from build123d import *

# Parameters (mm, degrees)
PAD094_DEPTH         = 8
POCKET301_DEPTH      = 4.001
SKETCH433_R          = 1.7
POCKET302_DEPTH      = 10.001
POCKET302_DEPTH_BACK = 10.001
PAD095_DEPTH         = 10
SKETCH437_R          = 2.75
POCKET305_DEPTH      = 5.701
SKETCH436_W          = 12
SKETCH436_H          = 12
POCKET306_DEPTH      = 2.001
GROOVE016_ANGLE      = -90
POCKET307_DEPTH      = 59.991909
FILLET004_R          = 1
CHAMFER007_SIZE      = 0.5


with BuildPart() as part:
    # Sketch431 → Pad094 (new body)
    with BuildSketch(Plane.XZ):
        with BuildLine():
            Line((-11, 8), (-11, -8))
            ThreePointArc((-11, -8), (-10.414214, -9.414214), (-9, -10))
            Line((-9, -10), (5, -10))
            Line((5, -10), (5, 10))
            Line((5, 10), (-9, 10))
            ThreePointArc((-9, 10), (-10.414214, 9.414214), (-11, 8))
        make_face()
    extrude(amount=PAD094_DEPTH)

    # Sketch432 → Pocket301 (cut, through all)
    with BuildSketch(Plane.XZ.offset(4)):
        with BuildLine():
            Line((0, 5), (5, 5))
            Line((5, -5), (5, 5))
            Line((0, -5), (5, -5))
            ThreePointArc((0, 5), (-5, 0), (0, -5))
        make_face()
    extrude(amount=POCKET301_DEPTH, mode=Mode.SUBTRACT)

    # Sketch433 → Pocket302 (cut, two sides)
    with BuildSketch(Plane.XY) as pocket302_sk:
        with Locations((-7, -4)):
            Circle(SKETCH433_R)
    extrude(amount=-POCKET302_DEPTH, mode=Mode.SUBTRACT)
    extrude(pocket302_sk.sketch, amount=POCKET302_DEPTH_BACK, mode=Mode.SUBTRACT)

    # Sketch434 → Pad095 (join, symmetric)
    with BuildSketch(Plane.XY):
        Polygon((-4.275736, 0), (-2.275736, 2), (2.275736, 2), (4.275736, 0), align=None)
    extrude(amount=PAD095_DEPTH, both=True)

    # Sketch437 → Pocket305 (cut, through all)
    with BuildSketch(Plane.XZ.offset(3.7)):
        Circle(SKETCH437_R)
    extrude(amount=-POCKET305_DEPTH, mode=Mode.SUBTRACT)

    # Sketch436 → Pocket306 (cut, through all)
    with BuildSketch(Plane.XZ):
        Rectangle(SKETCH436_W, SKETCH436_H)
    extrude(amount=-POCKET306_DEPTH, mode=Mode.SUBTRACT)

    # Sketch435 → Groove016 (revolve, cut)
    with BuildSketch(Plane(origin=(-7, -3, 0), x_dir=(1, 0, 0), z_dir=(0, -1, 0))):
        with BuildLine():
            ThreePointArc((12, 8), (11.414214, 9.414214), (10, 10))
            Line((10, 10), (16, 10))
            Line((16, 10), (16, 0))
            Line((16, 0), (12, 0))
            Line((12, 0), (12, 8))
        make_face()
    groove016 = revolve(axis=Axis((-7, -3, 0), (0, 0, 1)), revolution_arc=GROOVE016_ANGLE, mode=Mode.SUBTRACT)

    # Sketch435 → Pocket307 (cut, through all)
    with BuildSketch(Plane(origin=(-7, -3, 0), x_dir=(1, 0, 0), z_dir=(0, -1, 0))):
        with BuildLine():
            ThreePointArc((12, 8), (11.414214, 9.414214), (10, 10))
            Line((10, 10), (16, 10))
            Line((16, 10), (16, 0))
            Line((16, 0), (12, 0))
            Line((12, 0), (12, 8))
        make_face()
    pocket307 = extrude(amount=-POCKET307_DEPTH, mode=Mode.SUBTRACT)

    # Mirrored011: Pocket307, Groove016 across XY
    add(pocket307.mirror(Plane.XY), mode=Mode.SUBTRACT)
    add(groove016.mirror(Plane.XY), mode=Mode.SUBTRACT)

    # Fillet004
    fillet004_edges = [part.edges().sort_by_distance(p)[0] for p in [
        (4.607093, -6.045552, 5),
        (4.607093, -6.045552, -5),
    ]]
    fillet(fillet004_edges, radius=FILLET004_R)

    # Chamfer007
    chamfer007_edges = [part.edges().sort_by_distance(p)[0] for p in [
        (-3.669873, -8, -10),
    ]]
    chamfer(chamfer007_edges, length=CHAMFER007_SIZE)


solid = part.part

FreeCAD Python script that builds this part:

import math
import FreeCAD as App
import Part
import Sketcher
from FreeCAD import Vector


def edges_at(feature, points):
    """Names of the edges that pass closest to the given points."""
    edges = feature.Shape.Edges
    near = lambda p: min(range(len(edges)), key=lambda i: edges[i].distToShape(Part.Vertex(*p))[0])
    return sorted({f"Edge{near(p) + 1}" for p in points})


def add_polygon(sketch, points):
    """Adds a closed chain of lines whose ends are joined by coincident constraints."""
    first, n = sketch.GeometryCount, len(points)
    for a, b in zip(points, points[1:] + points[:1]):
        sketch.addGeometry(Part.LineSegment(App.Vector(*a, 0), App.Vector(*b, 0)), False)
    for i in range(n):
        sketch.addConstraint(Sketcher.Constraint("Coincident", first + i, 2, first + (i + 1) % n, 1))

doc = App.newDocument("Part")
body = doc.addObject("PartDesign::Body", "Body")

# Sketch on XZ plane
sketch1 = body.newObject("Sketcher::SketchObject", "Sketch")
sketch1.AttachmentSupport = (doc.getObject("XZ_Plane"), [""])
sketch1.MapMode = "FlatFace"
sketch1.addGeometry([
    Part.LineSegment(Vector(-11, 8, 0), Vector(-11, -8, 0)),  # 0
    Part.ArcOfCircle(Part.Circle(Vector(-9, -8, 0), Vector(0, 0, 1), 2), math.radians(180), math.radians(270)),  # 1
    Part.LineSegment(Vector(-9, -10, 0), Vector(5, -10, 0)),  # 2
    Part.LineSegment(Vector(5, -10, 0), Vector(5, 10, 0)),  # 3
    Part.LineSegment(Vector(5, 10, 0), Vector(-9, 10, 0)),  # 4
    Part.ArcOfCircle(Part.Circle(Vector(-9, 8, 0), Vector(0, 0, 1), 2), math.radians(90), math.radians(180)),  # 5
], False)
sketch1.addConstraint([
    Sketcher.Constraint("Tangent", 0, 2, 1, 1),
    Sketcher.Constraint("Tangent", 1, 2, 2, 1),
    Sketcher.Constraint("Coincident", 2, 2, 3, 1),
    Sketcher.Constraint("Coincident", 3, 2, 4, 1),
    Sketcher.Constraint("Tangent", 4, 2, 5, 1),
    Sketcher.Constraint("Tangent", 5, 2, 0, 1),
    Sketcher.Constraint("Vertical", 0),
    Sketcher.Constraint("Horizontal", 2),
    Sketcher.Constraint("Vertical", 3),
    Sketcher.Constraint("Horizontal", 4),
    Sketcher.Constraint("Equal", 1, 5),
    Sketcher.Constraint("Radius", 1, 1.999999),
    Sketcher.Constraint("DistanceX", 2, 1, 2, 2, 14.0),
    Sketcher.Constraint("DistanceY", 0, 2, 0, 1, 16.0),
    Sketcher.Constraint("DistanceX", 1, 3, -1, 1, 9.000001),
    Sketcher.Constraint("DistanceY", 1, 3, -1, 1, 8.000001),
])
pad1 = body.newObject("PartDesign::Pad", "Pad")
pad1.Profile = sketch1
pad1.Length = 8

# Sketch on XZ plane
sketch2 = body.newObject("Sketcher::SketchObject", "Sketch001")
sketch2.AttachmentSupport = (doc.getObject("XZ_Plane"), [""])
sketch2.MapMode = "FlatFace"
sketch2.AttachmentOffset = App.Placement(Vector(0, 0, 4), App.Rotation())
sketch2.addGeometry([
    Part.LineSegment(Vector(5, 5, 0), Vector(0, 5, 0)),
    Part.ArcOfCircle(Part.Circle(Vector(0, 0, 0), Vector(0, 0, 1), 5), math.radians(90), math.radians(270)),
    Part.LineSegment(Vector(0, -5, 0), Vector(5, -5, 0)),
    Part.LineSegment(Vector(5, -5, 0), Vector(5, 5, 0)),
], False)
sketch2.addConstraint([
    Sketcher.Constraint("Tangent", 0, 2, 1, 1),
    Sketcher.Constraint("Tangent", 1, 2, 2, 1),
    Sketcher.Constraint("Coincident", 2, 2, 3, 1),
    Sketcher.Constraint("Coincident", 3, 2, 0, 1),
    Sketcher.Constraint("Horizontal", 0),
    Sketcher.Constraint("Horizontal", 2),
    Sketcher.Constraint("Vertical", 3),
    Sketcher.Constraint("Coincident", 1, 3, -1, 1),
    Sketcher.Constraint("Radius", 1, 5.0),
    Sketcher.Constraint("DistanceX", 0, 2, 0, 1, 5.0),
])
pocket1 = body.newObject("PartDesign::Pocket", "Pocket")
pocket1.Profile = sketch2
pocket1.Type = "ThroughAll"
pocket1.Reversed = True

# Sketch on XY plane
sketch3 = body.newObject("Sketcher::SketchObject", "Sketch002")
sketch3.AttachmentSupport = (doc.getObject("XY_Plane"), [""])
sketch3.MapMode = "FlatFace"
sketch3.addGeometry(Part.Circle(Vector(-7, -4, 0), Vector(0, 0, 1), 1.7), False)
sketch3.addConstraint([
    Sketcher.Constraint("Diameter", 0, 3.4),
    Sketcher.Constraint("DistanceX", 0, 3, -1, 1, 7.0),
    Sketcher.Constraint("DistanceY", 0, 3, -1, 1, 4.0),
])
pocket2 = body.newObject("PartDesign::Pocket", "Pocket001")
pocket2.Profile = sketch3
pocket2.Type = "ThroughAll"
pocket2.Midplane = True

# Sketch on XY plane
sketch4 = body.newObject("Sketcher::SketchObject", "Sketch003")
sketch4.AttachmentSupport = (doc.getObject("XY_Plane"), [""])
sketch4.MapMode = "FlatFace"
add_polygon(sketch4, [(-2.3, 2), (-4.3, 0), (4.3, 0), (2.3, 2)])  # lines 0-3
sketch4.addConstraint([
    Sketcher.Constraint("Horizontal", 1),
    Sketcher.Constraint("Horizontal", 3),
    Sketcher.Constraint("Symmetric", 0, 2, 1, 2, -1, 1),
    Sketcher.Constraint("Perpendicular", 0, 2),
    Sketcher.Constraint("Equal", 0, 2),
    Sketcher.Constraint("DistanceY", -1, 1, 2, 2, 2.0),
    Sketcher.Constraint("DistanceX", 1, 1, 1, 2, 8.551472),
])
pad2 = body.newObject("PartDesign::Pad", "Pad001")
pad2.Profile = sketch4
pad2.Length = 20
pad2.Midplane = True

# Sketch on XZ plane
sketch5 = body.newObject("Sketcher::SketchObject", "Sketch004")
sketch5.AttachmentSupport = (doc.getObject("XZ_Plane"), [""])
sketch5.MapMode = "FlatFace"
sketch5.AttachmentOffset = App.Placement(Vector(0, 0, 3.7), App.Rotation())
sketch5.addGeometry(Part.Circle(Vector(0, 0, 0), Vector(0, 0, 1), 2.8), False)
sketch5.addConstraint([
    Sketcher.Constraint("Coincident", 0, 3, -1, 1),
    Sketcher.Constraint("Diameter", 0, 5.5),
])
pocket3 = body.newObject("PartDesign::Pocket", "Pocket002")
pocket3.Profile = sketch5
pocket3.Type = "ThroughAll"

# Sketch on XZ plane
sketch6 = body.newObject("Sketcher::SketchObject", "Sketch005")
sketch6.AttachmentSupport = (doc.getObject("XZ_Plane"), [""])
sketch6.MapMode = "FlatFace"
add_polygon(sketch6, [(-6, 6), (-6, -6), (6, -6), (6, 6)])  # lines 0-3
sketch6.addConstraint([
    Sketcher.Constraint("Vertical", 0),
    Sketcher.Constraint("Horizontal", 1),
    Sketcher.Constraint("Vertical", 2),
    Sketcher.Constraint("Horizontal", 3),
    Sketcher.Constraint("Symmetric", 0, 2, 2, 2, -1, 1),
    Sketcher.Constraint("Equal", 3, 0),
    Sketcher.Constraint("DistanceX", 1, 1, 1, 2, 12.0),
])
pocket4 = body.newObject("PartDesign::Pocket", "Pocket003")
pocket4.Profile = sketch6
pocket4.Type = "ThroughAll"

# Sketch on XZ plane
sketch7 = body.newObject("Sketcher::SketchObject", "Sketch006")
sketch7.AttachmentSupport = (doc.getObject("XZ_Plane"), [""])
sketch7.MapMode = "FlatFace"
sketch7.AttachmentOffset = App.Placement(Vector(0, 0, 3), App.Rotation())
sketch7.addGeometry([
    Part.ArcOfCircle(Part.Circle(Vector(3, 8, 0), Vector(0, 0, 1), 2), math.radians(0), math.radians(90)),  # 0
    Part.LineSegment(Vector(5, 8, 0), Vector(5, 0, 0)),  # 1
    Part.LineSegment(Vector(5, 0, 0), Vector(9, 0, 0)),  # 2
    Part.LineSegment(Vector(9, 0, 0), Vector(9, 10, 0)),  # 3
    Part.LineSegment(Vector(9, 10, 0), Vector(3, 10, 0)),  # 4
], False)
sketch7.addGeometry(Part.LineSegment(Vector(-7, 0, 0), Vector(-7, 10, 0)), True)  # axis
sketch7.addConstraint([
    Sketcher.Constraint("Tangent", 0, 1, 1, 1),
    Sketcher.Constraint("Coincident", 1, 2, 2, 1),
    Sketcher.Constraint("Coincident", 2, 2, 3, 1),
    Sketcher.Constraint("Coincident", 3, 2, 4, 1),
    Sketcher.Constraint("Tangent", 4, 2, 0, 2),
    Sketcher.Constraint("Vertical", 1),
    Sketcher.Constraint("Horizontal", 2),
    Sketcher.Constraint("Vertical", 3),
    Sketcher.Constraint("Horizontal", 4),
    Sketcher.Constraint("Vertical", 5),
    Sketcher.Constraint("PointOnObject", 1, 2, -1),
    Sketcher.Constraint("PointOnObject", 5, 1, -1),
    Sketcher.Constraint("Horizontal", 4, 2, 5, 2),
    Sketcher.Constraint("Radius", 0, 1.999999),
    Sketcher.Constraint("DistanceX", 2, 1, 2, 2, 4.0),
    Sketcher.Constraint("DistanceY", 1, 2, 1, 1, 8.0),
    Sketcher.Constraint("DistanceX", -1, 1, 0, 3, 3.000001),
    Sketcher.Constraint("DistanceX", 5, 1, -1, 1, 7.0),
])
groove = body.newObject("PartDesign::Groove", "Groove")
groove.Profile = sketch7
groove.ReferenceAxis = (sketch7, ["Axis0"])
groove.Angle = 90
groove.Reversed = True

# Sketch on XZ plane
sketch8 = body.newObject("Sketcher::SketchObject", "Sketch007")
sketch8.AttachmentSupport = (doc.getObject("XZ_Plane"), [""])
sketch8.MapMode = "FlatFace"
sketch8.AttachmentOffset = App.Placement(Vector(0, 0, 3), App.Rotation())
sketch8.addGeometry([
    Part.ArcOfCircle(Part.Circle(Vector(3, 8, 0), Vector(0, 0, 1), 2), math.radians(0), math.radians(90)),  # 0
    Part.LineSegment(Vector(5, 8, 0), Vector(5, 0, 0)),  # 1
    Part.LineSegment(Vector(5, 0, 0), Vector(9, 0, 0)),  # 2
    Part.LineSegment(Vector(9, 0, 0), Vector(9, 10, 0)),  # 3
    Part.LineSegment(Vector(9, 10, 0), Vector(3, 10, 0)),  # 4
], False)
sketch8.addConstraint([
    Sketcher.Constraint("Tangent", 0, 1, 1, 1),
    Sketcher.Constraint("Coincident", 1, 2, 2, 1),
    Sketcher.Constraint("Coincident", 2, 2, 3, 1),
    Sketcher.Constraint("Coincident", 3, 2, 4, 1),
    Sketcher.Constraint("Tangent", 4, 2, 0, 2),
    Sketcher.Constraint("Vertical", 1),
    Sketcher.Constraint("Horizontal", 2),
    Sketcher.Constraint("Vertical", 3),
    Sketcher.Constraint("Horizontal", 4),
    Sketcher.Constraint("PointOnObject", 1, 2, -1),
    Sketcher.Constraint("Radius", 0, 1.999999),
    Sketcher.Constraint("DistanceX", 2, 1, 2, 2, 4.0),
    Sketcher.Constraint("DistanceY", 1, 2, 1, 1, 8.0),
    Sketcher.Constraint("DistanceX", -1, 1, 0, 3, 3.000001),
])
pocket5 = body.newObject("PartDesign::Pocket", "Pocket004")
pocket5.Profile = sketch8
pocket5.Type = "ThroughAll"
doc.recompute()

mirrored = body.newObject("PartDesign::Mirrored", "Mirrored")
mirrored.Originals = [pocket5, groove]
mirrored.MirrorPlane = (doc.getObject("XY_Plane"), [""])
body.Tip = mirrored
doc.recompute()

fillet = body.newObject("PartDesign::Fillet", "Fillet")
fillet.Base = (mirrored, edges_at(mirrored, [(4.607, -6.046, 5), (4.607, -6.046, -5)]))
fillet.Radius = 1
doc.recompute()

chamfer = body.newObject("PartDesign::Chamfer", "Chamfer")
chamfer.Base = (fillet, edges_at(fillet, [(-3.67, -8, -10)]))
chamfer.Size = 0.5

doc.recompute()
